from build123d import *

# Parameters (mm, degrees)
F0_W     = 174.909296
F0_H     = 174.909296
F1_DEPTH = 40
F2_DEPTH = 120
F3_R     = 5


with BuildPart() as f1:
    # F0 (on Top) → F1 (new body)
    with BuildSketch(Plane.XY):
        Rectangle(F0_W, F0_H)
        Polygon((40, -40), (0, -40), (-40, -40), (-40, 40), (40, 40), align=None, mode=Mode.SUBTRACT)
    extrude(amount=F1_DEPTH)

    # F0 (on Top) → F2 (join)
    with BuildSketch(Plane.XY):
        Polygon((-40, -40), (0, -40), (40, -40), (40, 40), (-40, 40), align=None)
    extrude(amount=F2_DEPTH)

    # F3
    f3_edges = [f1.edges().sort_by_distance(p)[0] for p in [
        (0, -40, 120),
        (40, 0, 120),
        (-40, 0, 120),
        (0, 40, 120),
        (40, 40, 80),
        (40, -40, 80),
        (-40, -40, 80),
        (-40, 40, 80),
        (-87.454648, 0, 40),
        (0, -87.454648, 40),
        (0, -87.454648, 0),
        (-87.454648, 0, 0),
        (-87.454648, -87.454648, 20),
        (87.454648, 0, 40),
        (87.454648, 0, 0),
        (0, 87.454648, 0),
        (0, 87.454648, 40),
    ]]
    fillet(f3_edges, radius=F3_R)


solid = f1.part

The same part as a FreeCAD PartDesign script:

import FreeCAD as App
import Part
import Sketcher
Q = App.Units.Quantity


def edges_at(feature, points):
    """Names of the edges that pass closest to the given points."""
    edges = feature.Shape.Edges
    near = lambda p: min(range(len(edges)), key=lambda i: edges[i].distToShape(Part.Vertex(*p))[0])
    return sorted({f"Edge{near(p) + 1}" for p in points})


def add_polygon(sketch, points):
    """Adds a closed chain of lines whose ends are joined by coincident constraints."""
    first, n = sketch.GeometryCount, len(points)
    for a, b in zip(points, points[1:] + points[:1]):
        sketch.addGeometry(Part.LineSegment(App.Vector(*a, 0), App.Vector(*b, 0)), False)
    for i in range(n):
        sketch.addConstraint(Sketcher.Constraint("Coincident", first + i, 2, first + (i + 1) % n, 1))

doc = App.newDocument("Part")
body = doc.addObject("PartDesign::Body", "Body")

# Sketch on XY plane
sketch1 = doc.addObject("Sketcher::SketchObject", "Sketch")
body.addObject(sketch1)
sketch1.AttachmentSupport = (doc.XY_Plane, [""])
sketch1.MapMode = "FlatFace"
add_polygon(sketch1, [(-87, 87), (-87, -87), (87, -87), (87, 87)])  # lines 0-3
add_polygon(sketch1, [(40, 40), (40, -40), (-40, -40), (-40, 40)])  # lines 4-7
sketch1.addConstraint([
    Sketcher.Constraint("Vertical", 0),
    Sketcher.Constraint("Horizontal", 1),
    Sketcher.Constraint("Vertical", 2),
    Sketcher.Constraint("Horizontal", 3),
    Sketcher.Constraint("Vertical", 4),
    Sketcher.Constraint("Horizontal", 5),
    Sketcher.Constraint("Vertical", 6),
    Sketcher.Constraint("Horizontal", 7),
    Sketcher.Constraint("Symmetric", 0, 2, 2, 2, -1, 1),
    Sketcher.Constraint("Symmetric", 4, 2, 6, 2, -1, 1),
    Sketcher.Constraint("Equal", 3, 0),
    Sketcher.Constraint("Equal", 7, 4),
    Sketcher.Constraint("DistanceX", 5, 2, 5, 1, Q("80 mm")),
    Sketcher.Constraint("DistanceX", 1, 1, 1, 2, Q("174.909296 mm")),
])
pad1 = doc.addObject("PartDesign::Pad", "Pad")
body.addObject(pad1)
pad1.Profile = sketch1
pad1.Length = 40

# Sketch on XY plane
sketch2 = doc.addObject("Sketcher::SketchObject", "Sketch001")
body.addObject(sketch2)
sketch2.AttachmentSupport = (doc.XY_Plane, [""])
sketch2.MapMode = "FlatFace"
add_polygon(sketch2, [(-40, -40), (40, -40), (40, 40), (-40, 40)])  # lines 0-3
sketch2.addConstraint([
    Sketcher.Constraint("Horizontal", 0),
    Sketcher.Constraint("Vertical", 1),
    Sketcher.Constraint("Horizontal", 2),
    Sketcher.Constraint("Vertical", 3),
    Sketcher.Constraint("Symmetric", 0, 2, 2, 2, -1, 1),
    Sketcher.Constraint("Equal", 2, 1),
    Sketcher.Constraint("DistanceX", 0, 1, 0, 2, Q("80 mm")),
])
pad2 = doc.addObject("PartDesign::Pad", "Pad001")
body.addObject(pad2)
pad2.Profile = sketch2
pad2.Length = 120
doc.recompute()

fillet = doc.addObject("PartDesign::Fillet", "Fillet")
body.addObject(fillet)
fillet.Base = (pad2, edges_at(pad2, [
    (0, -40, 120),
    (40, 0, 120),
    (-40, 0, 120),
    (0, 40, 120),
    (40, 40, 80),
    (40, -40, 80),
    (-40, -40, 80),
    (-40, 40, 80),
    (-87.455, 0, 40),
    (0, -87.455, 40),
    (0, -87.455, 0),
    (-87.455, 0, 0),
    (-87.455, -87.455, 20),
    (87.455, 0, 40),
    (87.455, 0, 0),
    (0, 87.455, 0),
    (0, 87.455, 40),
]))
fillet.Radius = 5

doc.recompute()
